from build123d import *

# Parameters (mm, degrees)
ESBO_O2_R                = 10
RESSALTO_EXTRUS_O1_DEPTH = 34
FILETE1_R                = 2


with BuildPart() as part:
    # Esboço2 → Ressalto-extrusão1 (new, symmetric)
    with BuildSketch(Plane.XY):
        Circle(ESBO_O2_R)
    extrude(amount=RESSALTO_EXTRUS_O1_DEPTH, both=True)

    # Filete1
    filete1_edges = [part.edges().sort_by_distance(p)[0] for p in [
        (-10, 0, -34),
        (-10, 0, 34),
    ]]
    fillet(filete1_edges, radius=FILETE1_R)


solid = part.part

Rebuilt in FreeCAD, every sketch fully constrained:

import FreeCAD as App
import Part
import Sketcher
from FreeCAD import Vector


def edges_at(feature, points):
    """Names of the edges that pass closest to the given points."""
    edges = feature.Shape.Edges
    near = lambda p: min(range(len(edges)), key=lambda i: edges[i].distToShape(Part.Vertex(*p))[0])
    return sorted({f"Edge{near(p) + 1}" for p in points})

doc = App.newDocument("Part")
params = doc.addObject("Spreadsheet::Sheet", "Params")
for row, (alias, value) in enumerate([
    ("sketch1_diameter", "20 mm"),
    ("pad1_length", "68 mm"),
    ("fillet_radius", "2 mm"),
], start=1):
    params.set(f"A{row}", alias)
    params.set(f"B{row}", "=" + value)
    params.setAlias(f"B{row}", alias)

body = doc.addObject("PartDesign::Body", "Body")

sketch1 = body.newObject("Sketcher::SketchObject", "Sketch")
sketch1.AttachmentSupport = (doc.getObject("XY_Plane"), [""])
sketch1.MapMode = "FlatFace"
sketch1.addGeometry(Part.Circle(Vector(0, 0, 0), Vector(0, 0, 1), 10), False)
sketch1.addConstraint([
    Sketcher.Constraint("Coincident", 0, 3, -1, 1),
    Sketcher.Constraint("Diameter", 0, 20.0),
])
sketch1.setExpression("Constraints[1]", "Params.sketch1_diameter")
pad1 = body.newObject("PartDesign::Pad", "Pad")
pad1.Profile = sketch1
pad1.setExpression("Length", "Params.pad1_length")
pad1.Midplane = True
doc.recompute()

fillet = body.newObject("PartDesign::Fillet", "Fillet")
fillet.Base = (pad1, edges_at(pad1, [(-10, 0, -34), (-10, 0, 34)]))
fillet.setExpression("Radius", "Params.fillet_radius")

doc.recompute()
